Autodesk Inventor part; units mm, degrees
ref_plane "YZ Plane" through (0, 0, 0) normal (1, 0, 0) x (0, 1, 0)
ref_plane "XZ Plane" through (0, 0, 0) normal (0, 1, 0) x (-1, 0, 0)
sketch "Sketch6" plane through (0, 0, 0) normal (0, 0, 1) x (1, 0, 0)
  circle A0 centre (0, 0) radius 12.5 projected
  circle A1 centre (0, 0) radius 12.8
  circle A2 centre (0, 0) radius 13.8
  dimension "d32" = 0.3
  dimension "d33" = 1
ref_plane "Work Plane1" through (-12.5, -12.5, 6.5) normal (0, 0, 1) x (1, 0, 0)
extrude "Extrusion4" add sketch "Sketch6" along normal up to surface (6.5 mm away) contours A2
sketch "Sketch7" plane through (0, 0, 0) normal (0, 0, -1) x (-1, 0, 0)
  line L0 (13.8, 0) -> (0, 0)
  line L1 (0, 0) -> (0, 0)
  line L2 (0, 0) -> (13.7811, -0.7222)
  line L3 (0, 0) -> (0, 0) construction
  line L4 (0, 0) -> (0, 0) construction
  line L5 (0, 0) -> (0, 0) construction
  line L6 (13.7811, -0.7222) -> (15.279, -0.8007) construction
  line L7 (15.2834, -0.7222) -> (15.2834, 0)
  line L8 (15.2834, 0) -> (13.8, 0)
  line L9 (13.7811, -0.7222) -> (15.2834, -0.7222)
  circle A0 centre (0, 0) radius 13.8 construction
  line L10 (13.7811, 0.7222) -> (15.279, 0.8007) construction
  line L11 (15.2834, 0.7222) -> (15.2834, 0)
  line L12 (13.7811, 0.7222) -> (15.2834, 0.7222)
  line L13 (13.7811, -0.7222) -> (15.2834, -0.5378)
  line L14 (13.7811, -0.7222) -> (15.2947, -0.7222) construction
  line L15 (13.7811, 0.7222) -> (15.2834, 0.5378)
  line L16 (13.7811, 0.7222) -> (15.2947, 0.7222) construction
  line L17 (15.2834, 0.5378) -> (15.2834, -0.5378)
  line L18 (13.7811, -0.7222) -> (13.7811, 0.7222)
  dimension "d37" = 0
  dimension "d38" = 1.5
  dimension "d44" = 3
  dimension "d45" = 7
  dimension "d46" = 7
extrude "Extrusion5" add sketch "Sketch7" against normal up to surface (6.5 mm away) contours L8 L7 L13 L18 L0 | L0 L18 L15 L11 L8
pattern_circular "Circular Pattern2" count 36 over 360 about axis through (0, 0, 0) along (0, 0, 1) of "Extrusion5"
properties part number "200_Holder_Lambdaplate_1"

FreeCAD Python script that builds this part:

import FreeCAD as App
import Part
import Sketcher


def add_polygon(sketch, points):
    """Adds a closed chain of lines whose ends are joined by coincident constraints."""
    first, n = sketch.GeometryCount, len(points)
    for a, b in zip(points, points[1:] + points[:1]):
        sketch.addGeometry(Part.LineSegment(App.Vector(*a, 0), App.Vector(*b, 0)), False)
    for i in range(n):
        sketch.addConstraint(Sketcher.Constraint("Coincident", first + i, 2, first + (i + 1) % n, 1))

doc = App.newDocument("Part")
params = doc.addObject("Spreadsheet::Sheet", "Params")
for row, (alias, value) in enumerate([
    ("sketch1_diameter", "27.6 mm"),
    ("sketch1_diameter2", "25.6 mm"),
    ("pad1_length", "6.5 mm"),
    ("pad2_length", "6.5 mm"),
], start=1):
    params.set(f"A{row}", alias)
    params.set(f"B{row}", "=" + value)
    params.setAlias(f"B{row}", alias)

body = doc.addObject("PartDesign::Body", "Body")

# Sketch on XY plane
sketch1 = doc.addObject("Sketcher::SketchObject", "Sketch")
body.addObject(sketch1)
sketch1.AttachmentSupport = (doc.XY_Plane, [""])
sketch1.MapMode = "FlatFace"
sketch1.addGeometry([
    Part.Circle(App.Vector(0, 0, 0), App.Vector(0, 0, 1), 13.8),
    Part.Circle(App.Vector(0, 0, 0), App.Vector(0, 0, 1), 12.8),
], False)
sketch1.addConstraint([
    Sketcher.Constraint("Coincident", 0, 3, -1, 1),
    Sketcher.Constraint("Coincident", 1, 3, -1, 1),
    Sketcher.Constraint("Diameter", 0, 27.6),
    Sketcher.Constraint("Diameter", 1, 25.6),
])
sketch1.setExpression("Constraints[2]", "Params.sketch1_diameter")
sketch1.setExpression("Constraints[3]", "Params.sketch1_diameter2")
pad1 = doc.addObject("PartDesign::Pad", "Pad")
body.addObject(pad1)
pad1.Profile = sketch1
pad1.setExpression("Length", "Params.pad1_length")

# Sketch on XY plane
sketch2 = doc.addObject("Sketcher::SketchObject", "Sketch001")
body.addObject(sketch2)
sketch2.AttachmentSupport = (doc.XY_Plane, [""])
sketch2.MapMode = "FlatFace"
add_polygon(sketch2, [(-15.2834, -0.5378), (-15.2834, 0.5378), (-13.7811, 0.7222), (-13.7811, -0.7222)])  # lines 0-3
sketch2.addConstraint([
    Sketcher.Constraint("Vertical", 0),
    Sketcher.Constraint("Vertical", 2),
    Sketcher.Constraint("Equal", 1, 3),
    Sketcher.Constraint("DistanceY", 2, 2, 0, 2, 1.26),
    Sketcher.Constraint("DistanceY", 0, 1, 0, 2, 1.0756),
    Sketcher.Constraint("DistanceX", 1, 2, -1, 1, 13.781),
    Sketcher.Constraint("Distance", 1, 1.5136),
    Sketcher.Constraint("DistanceY", -1, 1, 0, 2, 0.5378),
])
pad2 = doc.addObject("PartDesign::Pad", "Pad001")
body.addObject(pad2)
pad2.Profile = sketch2
pad2.setExpression("Length", "Params.pad2_length")
doc.recompute()

polarpattern = doc.addObject("PartDesign::PolarPattern", "PolarPattern")
body.addObject(polarpattern)
polarpattern.Originals = [pad2]
polarpattern.Axis = (doc.Z_Axis, [""])
polarpattern.Angle = 360
polarpattern.Occurrences = 36
body.Tip = polarpattern

doc.recompute()
